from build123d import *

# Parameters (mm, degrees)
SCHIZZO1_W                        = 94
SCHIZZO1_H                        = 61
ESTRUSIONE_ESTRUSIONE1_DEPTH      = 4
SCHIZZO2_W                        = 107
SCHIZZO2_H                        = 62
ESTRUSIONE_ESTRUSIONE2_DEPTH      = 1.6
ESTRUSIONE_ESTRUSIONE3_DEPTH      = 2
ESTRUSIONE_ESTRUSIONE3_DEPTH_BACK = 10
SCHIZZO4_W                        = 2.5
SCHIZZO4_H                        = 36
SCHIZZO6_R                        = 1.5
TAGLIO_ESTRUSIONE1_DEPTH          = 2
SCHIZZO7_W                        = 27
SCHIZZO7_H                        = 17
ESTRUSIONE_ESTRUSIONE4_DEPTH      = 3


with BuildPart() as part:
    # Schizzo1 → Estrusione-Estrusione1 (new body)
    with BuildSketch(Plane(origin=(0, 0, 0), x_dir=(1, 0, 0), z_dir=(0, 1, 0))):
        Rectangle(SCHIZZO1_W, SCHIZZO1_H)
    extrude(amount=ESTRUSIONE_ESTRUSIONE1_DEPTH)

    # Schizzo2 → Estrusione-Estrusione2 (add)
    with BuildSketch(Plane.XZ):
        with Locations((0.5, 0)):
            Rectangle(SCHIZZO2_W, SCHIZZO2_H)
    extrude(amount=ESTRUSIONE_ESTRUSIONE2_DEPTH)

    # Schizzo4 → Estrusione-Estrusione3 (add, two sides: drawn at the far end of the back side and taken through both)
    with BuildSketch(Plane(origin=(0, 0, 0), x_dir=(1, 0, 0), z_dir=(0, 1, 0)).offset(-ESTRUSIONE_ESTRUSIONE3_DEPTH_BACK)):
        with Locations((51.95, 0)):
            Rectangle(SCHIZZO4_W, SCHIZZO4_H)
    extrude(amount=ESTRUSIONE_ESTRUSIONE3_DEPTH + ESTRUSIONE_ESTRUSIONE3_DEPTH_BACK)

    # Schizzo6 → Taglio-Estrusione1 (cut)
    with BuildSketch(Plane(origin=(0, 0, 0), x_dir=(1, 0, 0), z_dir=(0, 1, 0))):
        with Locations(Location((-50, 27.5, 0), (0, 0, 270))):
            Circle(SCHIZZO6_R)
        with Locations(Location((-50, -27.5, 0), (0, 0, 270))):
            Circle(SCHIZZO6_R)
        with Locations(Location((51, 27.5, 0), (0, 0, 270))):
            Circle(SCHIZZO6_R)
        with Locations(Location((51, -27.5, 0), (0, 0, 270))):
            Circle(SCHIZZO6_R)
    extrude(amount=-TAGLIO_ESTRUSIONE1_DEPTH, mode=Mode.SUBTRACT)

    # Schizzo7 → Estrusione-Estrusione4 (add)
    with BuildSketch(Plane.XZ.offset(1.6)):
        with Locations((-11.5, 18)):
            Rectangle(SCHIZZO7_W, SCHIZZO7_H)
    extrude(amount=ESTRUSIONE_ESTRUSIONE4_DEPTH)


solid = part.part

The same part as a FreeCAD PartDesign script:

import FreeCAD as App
import Part
import Sketcher

V = App.Vector

doc = App.newDocument("Part")
body = doc.addObject("PartDesign::Body", "Body")

sketch1 = body.newObject("Sketcher::SketchObject", "Sketch")
sketch1.AttachmentSupport = (doc.getObject("XZ_Plane"), [""])
sketch1.MapMode = "FlatFace"
sketch1.addGeometry([
    Part.LineSegment(V(-47, -30, 0), V(-47, 30, 0)),
    Part.LineSegment(V(-47, 30, 0), V(47, 30, 0)),
    Part.LineSegment(V(47, 30, 0), V(47, -30, 0)),
    Part.LineSegment(V(47, -30, 0), V(-47, -30, 0)),
], False)
sketch1.addConstraint([
    Sketcher.Constraint("Coincident", 0, 2, 1, 1),
    Sketcher.Constraint("Coincident", 1, 2, 2, 1),
    Sketcher.Constraint("Coincident", 2, 2, 3, 1),
    Sketcher.Constraint("Coincident", 3, 2, 0, 1),
    Sketcher.Constraint("Vertical", 0),
    Sketcher.Constraint("Horizontal", 1),
    Sketcher.Constraint("Vertical", 2),
    Sketcher.Constraint("Horizontal", 3),
    Sketcher.Constraint("Symmetric", 0, 2, 2, 2, -1, 1),
    Sketcher.Constraint("DistanceX", 1, 1, 1, 2, 94.0),
    Sketcher.Constraint("DistanceY", 0, 1, 0, 2, 61.0),
])
pad1 = body.newObject("PartDesign::Pad", "Pad")
pad1.Profile = sketch1
pad1.Length = 4
pad1.Reversed = True

sketch2 = body.newObject("Sketcher::SketchObject", "Sketch001")
sketch2.AttachmentSupport = (doc.getObject("XZ_Plane"), [""])
sketch2.MapMode = "FlatFace"
sketch2.addGeometry([
    Part.LineSegment(V(-53, 31, 0), V(-53, -31, 0)),
    Part.LineSegment(V(-53, -31, 0), V(54, -31, 0)),
    Part.LineSegment(V(54, -31, 0), V(54, 31, 0)),
    Part.LineSegment(V(54, 31, 0), V(-53, 31, 0)),
], False)
sketch2.addConstraint([
    Sketcher.Constraint("Coincident", 0, 2, 1, 1),
    Sketcher.Constraint("Coincident", 1, 2, 2, 1),
    Sketcher.Constraint("Coincident", 2, 2, 3, 1),
    Sketcher.Constraint("Coincident", 3, 2, 0, 1),
    Sketcher.Constraint("Vertical", 0),
    Sketcher.Constraint("Horizontal", 1),
    Sketcher.Constraint("Vertical", 2),
    Sketcher.Constraint("Horizontal", 3),
    Sketcher.Constraint("DistanceX", 1, 1, 1, 2, 107.0),
    Sketcher.Constraint("DistanceY", 0, 2, 0, 1, 62.0),
    Sketcher.Constraint("DistanceX", 0, 2, -1, 1, 53.0),
    Sketcher.Constraint("DistanceY", 0, 2, -1, 1, 31.0),
])
pad2 = body.newObject("PartDesign::Pad", "Pad001")
pad2.Profile = sketch2
pad2.Length = 1.6

sketch3 = body.newObject("Sketcher::SketchObject", "Sketch002")
sketch3.AttachmentSupport = (doc.getObject("XZ_Plane"), [""])
sketch3.MapMode = "FlatFace"
sketch3.addGeometry([
    Part.LineSegment(V(50.7, -18, 0), V(50.7, 18, 0)),
    Part.LineSegment(V(50.7, 18, 0), V(53.2, 18, 0)),
    Part.LineSegment(V(53.2, 18, 0), V(53.2, -18, 0)),
    Part.LineSegment(V(53.2, -18, 0), V(50.7, -18, 0)),
], False)
sketch3.addConstraint([
    Sketcher.Constraint("Coincident", 0, 2, 1, 1),
    Sketcher.Constraint("Coincident", 1, 2, 2, 1),
    Sketcher.Constraint("Coincident", 2, 2, 3, 1),
    Sketcher.Constraint("Coincident", 3, 2, 0, 1),
    Sketcher.Constraint("Vertical", 0),
    Sketcher.Constraint("Horizontal", 1),
    Sketcher.Constraint("Vertical", 2),
    Sketcher.Constraint("Horizontal", 3),
    Sketcher.Constraint("DistanceY", 0, 1, 0, 2, 36.0),
    Sketcher.Constraint("DistanceX", 1, 1, 1, 2, 2.5),
    Sketcher.Constraint("DistanceY", -1, 1, 0, 2, 18.0),
    Sketcher.Constraint("DistanceX", -1, 1, 0, 2, 50.7),
])
pad3 = body.newObject("PartDesign::Pad", "Pad002")
pad3.Profile = sketch3
pad3.Type = "TwoLengths"
pad3.Length = 2
pad3.Length2 = 10
pad3.Reversed = True

sketch4 = body.newObject("Sketcher::SketchObject", "Sketch003")
sketch4.AttachmentSupport = (doc.getObject("XZ_Plane"), [""])
sketch4.MapMode = "FlatFace"
sketch4.addGeometry([
    Part.Circle(V(-50, -27.5, 0), V(0, 0, 1), 1.5),
    Part.Circle(V(-50, 27.5, 0), V(0, 0, 1), 1.5),
    Part.Circle(V(51, -27.5, 0), V(0, 0, 1), 1.5),
    Part.Circle(V(51, 27.5, 0), V(0, 0, 1), 1.5),
], False)
sketch4.addConstraint([
    Sketcher.Constraint("Equal", 0, 1),
    Sketcher.Constraint("Equal", 1, 2),
    Sketcher.Constraint("Equal", 2, 3),
    Sketcher.Constraint("Symmetric", 0, 3, 1, 3, -1),
    Sketcher.Constraint("Symmetric", 2, 3, 3, 3, -1),
    Sketcher.Constraint("Horizontal", 0, 3, 2, 3),
    Sketcher.Constraint("Diameter", 0, 3.0),
    Sketcher.Constraint("DistanceX", 0, 3, -1, 1, 50.0),
    Sketcher.Constraint("DistanceX", -1, 1, 2, 3, 51.0),
    Sketcher.Constraint("DistanceY", 0, 3, 1, 3, 55.0),
])
pocket1 = body.newObject("PartDesign::Pocket", "Pocket")
pocket1.Profile = sketch4
pocket1.Length = 2
pocket1.Reversed = True

sketch5 = body.newObject("Sketcher::SketchObject", "Sketch004")
sketch5.AttachmentSupport = (doc.getObject("XZ_Plane"), [""])
sketch5.MapMode = "FlatFace"
sketch5.AttachmentOffset = App.Placement(V(0, 0, 1.6), App.Rotation())
sketch5.addGeometry([
    Part.LineSegment(V(-25, 26, 0), V(-25, 10, 0)),
    Part.LineSegment(V(-25, 10, 0), V(2, 10, 0)),
    Part.LineSegment(V(2, 10, 0), V(2, 26, 0)),
    Part.LineSegment(V(2, 26, 0), V(-25, 26, 0)),
], False)
sketch5.addConstraint([
    Sketcher.Constraint("Coincident", 0, 2, 1, 1),
    Sketcher.Constraint("Coincident", 1, 2, 2, 1),
    Sketcher.Constraint("Coincident", 2, 2, 3, 1),
    Sketcher.Constraint("Coincident", 3, 2, 0, 1),
    Sketcher.Constraint("Vertical", 0),
    Sketcher.Constraint("Horizontal", 1),
    Sketcher.Constraint("Vertical", 2),
    Sketcher.Constraint("Horizontal", 3),
    Sketcher.Constraint("DistanceX", 1, 1, 1, 2, 27.0),
    Sketcher.Constraint("DistanceY", 0, 2, 0, 1, 17.0),
    Sketcher.Constraint("DistanceX", 0, 2, -1, 1, 25.0),
    Sketcher.Constraint("DistanceY", -1, 1, 0, 2, 9.5),
])
pad4 = body.newObject("PartDesign::Pad", "Pad003")
pad4.Profile = sketch5
pad4.Length = 3

doc.recompute()
